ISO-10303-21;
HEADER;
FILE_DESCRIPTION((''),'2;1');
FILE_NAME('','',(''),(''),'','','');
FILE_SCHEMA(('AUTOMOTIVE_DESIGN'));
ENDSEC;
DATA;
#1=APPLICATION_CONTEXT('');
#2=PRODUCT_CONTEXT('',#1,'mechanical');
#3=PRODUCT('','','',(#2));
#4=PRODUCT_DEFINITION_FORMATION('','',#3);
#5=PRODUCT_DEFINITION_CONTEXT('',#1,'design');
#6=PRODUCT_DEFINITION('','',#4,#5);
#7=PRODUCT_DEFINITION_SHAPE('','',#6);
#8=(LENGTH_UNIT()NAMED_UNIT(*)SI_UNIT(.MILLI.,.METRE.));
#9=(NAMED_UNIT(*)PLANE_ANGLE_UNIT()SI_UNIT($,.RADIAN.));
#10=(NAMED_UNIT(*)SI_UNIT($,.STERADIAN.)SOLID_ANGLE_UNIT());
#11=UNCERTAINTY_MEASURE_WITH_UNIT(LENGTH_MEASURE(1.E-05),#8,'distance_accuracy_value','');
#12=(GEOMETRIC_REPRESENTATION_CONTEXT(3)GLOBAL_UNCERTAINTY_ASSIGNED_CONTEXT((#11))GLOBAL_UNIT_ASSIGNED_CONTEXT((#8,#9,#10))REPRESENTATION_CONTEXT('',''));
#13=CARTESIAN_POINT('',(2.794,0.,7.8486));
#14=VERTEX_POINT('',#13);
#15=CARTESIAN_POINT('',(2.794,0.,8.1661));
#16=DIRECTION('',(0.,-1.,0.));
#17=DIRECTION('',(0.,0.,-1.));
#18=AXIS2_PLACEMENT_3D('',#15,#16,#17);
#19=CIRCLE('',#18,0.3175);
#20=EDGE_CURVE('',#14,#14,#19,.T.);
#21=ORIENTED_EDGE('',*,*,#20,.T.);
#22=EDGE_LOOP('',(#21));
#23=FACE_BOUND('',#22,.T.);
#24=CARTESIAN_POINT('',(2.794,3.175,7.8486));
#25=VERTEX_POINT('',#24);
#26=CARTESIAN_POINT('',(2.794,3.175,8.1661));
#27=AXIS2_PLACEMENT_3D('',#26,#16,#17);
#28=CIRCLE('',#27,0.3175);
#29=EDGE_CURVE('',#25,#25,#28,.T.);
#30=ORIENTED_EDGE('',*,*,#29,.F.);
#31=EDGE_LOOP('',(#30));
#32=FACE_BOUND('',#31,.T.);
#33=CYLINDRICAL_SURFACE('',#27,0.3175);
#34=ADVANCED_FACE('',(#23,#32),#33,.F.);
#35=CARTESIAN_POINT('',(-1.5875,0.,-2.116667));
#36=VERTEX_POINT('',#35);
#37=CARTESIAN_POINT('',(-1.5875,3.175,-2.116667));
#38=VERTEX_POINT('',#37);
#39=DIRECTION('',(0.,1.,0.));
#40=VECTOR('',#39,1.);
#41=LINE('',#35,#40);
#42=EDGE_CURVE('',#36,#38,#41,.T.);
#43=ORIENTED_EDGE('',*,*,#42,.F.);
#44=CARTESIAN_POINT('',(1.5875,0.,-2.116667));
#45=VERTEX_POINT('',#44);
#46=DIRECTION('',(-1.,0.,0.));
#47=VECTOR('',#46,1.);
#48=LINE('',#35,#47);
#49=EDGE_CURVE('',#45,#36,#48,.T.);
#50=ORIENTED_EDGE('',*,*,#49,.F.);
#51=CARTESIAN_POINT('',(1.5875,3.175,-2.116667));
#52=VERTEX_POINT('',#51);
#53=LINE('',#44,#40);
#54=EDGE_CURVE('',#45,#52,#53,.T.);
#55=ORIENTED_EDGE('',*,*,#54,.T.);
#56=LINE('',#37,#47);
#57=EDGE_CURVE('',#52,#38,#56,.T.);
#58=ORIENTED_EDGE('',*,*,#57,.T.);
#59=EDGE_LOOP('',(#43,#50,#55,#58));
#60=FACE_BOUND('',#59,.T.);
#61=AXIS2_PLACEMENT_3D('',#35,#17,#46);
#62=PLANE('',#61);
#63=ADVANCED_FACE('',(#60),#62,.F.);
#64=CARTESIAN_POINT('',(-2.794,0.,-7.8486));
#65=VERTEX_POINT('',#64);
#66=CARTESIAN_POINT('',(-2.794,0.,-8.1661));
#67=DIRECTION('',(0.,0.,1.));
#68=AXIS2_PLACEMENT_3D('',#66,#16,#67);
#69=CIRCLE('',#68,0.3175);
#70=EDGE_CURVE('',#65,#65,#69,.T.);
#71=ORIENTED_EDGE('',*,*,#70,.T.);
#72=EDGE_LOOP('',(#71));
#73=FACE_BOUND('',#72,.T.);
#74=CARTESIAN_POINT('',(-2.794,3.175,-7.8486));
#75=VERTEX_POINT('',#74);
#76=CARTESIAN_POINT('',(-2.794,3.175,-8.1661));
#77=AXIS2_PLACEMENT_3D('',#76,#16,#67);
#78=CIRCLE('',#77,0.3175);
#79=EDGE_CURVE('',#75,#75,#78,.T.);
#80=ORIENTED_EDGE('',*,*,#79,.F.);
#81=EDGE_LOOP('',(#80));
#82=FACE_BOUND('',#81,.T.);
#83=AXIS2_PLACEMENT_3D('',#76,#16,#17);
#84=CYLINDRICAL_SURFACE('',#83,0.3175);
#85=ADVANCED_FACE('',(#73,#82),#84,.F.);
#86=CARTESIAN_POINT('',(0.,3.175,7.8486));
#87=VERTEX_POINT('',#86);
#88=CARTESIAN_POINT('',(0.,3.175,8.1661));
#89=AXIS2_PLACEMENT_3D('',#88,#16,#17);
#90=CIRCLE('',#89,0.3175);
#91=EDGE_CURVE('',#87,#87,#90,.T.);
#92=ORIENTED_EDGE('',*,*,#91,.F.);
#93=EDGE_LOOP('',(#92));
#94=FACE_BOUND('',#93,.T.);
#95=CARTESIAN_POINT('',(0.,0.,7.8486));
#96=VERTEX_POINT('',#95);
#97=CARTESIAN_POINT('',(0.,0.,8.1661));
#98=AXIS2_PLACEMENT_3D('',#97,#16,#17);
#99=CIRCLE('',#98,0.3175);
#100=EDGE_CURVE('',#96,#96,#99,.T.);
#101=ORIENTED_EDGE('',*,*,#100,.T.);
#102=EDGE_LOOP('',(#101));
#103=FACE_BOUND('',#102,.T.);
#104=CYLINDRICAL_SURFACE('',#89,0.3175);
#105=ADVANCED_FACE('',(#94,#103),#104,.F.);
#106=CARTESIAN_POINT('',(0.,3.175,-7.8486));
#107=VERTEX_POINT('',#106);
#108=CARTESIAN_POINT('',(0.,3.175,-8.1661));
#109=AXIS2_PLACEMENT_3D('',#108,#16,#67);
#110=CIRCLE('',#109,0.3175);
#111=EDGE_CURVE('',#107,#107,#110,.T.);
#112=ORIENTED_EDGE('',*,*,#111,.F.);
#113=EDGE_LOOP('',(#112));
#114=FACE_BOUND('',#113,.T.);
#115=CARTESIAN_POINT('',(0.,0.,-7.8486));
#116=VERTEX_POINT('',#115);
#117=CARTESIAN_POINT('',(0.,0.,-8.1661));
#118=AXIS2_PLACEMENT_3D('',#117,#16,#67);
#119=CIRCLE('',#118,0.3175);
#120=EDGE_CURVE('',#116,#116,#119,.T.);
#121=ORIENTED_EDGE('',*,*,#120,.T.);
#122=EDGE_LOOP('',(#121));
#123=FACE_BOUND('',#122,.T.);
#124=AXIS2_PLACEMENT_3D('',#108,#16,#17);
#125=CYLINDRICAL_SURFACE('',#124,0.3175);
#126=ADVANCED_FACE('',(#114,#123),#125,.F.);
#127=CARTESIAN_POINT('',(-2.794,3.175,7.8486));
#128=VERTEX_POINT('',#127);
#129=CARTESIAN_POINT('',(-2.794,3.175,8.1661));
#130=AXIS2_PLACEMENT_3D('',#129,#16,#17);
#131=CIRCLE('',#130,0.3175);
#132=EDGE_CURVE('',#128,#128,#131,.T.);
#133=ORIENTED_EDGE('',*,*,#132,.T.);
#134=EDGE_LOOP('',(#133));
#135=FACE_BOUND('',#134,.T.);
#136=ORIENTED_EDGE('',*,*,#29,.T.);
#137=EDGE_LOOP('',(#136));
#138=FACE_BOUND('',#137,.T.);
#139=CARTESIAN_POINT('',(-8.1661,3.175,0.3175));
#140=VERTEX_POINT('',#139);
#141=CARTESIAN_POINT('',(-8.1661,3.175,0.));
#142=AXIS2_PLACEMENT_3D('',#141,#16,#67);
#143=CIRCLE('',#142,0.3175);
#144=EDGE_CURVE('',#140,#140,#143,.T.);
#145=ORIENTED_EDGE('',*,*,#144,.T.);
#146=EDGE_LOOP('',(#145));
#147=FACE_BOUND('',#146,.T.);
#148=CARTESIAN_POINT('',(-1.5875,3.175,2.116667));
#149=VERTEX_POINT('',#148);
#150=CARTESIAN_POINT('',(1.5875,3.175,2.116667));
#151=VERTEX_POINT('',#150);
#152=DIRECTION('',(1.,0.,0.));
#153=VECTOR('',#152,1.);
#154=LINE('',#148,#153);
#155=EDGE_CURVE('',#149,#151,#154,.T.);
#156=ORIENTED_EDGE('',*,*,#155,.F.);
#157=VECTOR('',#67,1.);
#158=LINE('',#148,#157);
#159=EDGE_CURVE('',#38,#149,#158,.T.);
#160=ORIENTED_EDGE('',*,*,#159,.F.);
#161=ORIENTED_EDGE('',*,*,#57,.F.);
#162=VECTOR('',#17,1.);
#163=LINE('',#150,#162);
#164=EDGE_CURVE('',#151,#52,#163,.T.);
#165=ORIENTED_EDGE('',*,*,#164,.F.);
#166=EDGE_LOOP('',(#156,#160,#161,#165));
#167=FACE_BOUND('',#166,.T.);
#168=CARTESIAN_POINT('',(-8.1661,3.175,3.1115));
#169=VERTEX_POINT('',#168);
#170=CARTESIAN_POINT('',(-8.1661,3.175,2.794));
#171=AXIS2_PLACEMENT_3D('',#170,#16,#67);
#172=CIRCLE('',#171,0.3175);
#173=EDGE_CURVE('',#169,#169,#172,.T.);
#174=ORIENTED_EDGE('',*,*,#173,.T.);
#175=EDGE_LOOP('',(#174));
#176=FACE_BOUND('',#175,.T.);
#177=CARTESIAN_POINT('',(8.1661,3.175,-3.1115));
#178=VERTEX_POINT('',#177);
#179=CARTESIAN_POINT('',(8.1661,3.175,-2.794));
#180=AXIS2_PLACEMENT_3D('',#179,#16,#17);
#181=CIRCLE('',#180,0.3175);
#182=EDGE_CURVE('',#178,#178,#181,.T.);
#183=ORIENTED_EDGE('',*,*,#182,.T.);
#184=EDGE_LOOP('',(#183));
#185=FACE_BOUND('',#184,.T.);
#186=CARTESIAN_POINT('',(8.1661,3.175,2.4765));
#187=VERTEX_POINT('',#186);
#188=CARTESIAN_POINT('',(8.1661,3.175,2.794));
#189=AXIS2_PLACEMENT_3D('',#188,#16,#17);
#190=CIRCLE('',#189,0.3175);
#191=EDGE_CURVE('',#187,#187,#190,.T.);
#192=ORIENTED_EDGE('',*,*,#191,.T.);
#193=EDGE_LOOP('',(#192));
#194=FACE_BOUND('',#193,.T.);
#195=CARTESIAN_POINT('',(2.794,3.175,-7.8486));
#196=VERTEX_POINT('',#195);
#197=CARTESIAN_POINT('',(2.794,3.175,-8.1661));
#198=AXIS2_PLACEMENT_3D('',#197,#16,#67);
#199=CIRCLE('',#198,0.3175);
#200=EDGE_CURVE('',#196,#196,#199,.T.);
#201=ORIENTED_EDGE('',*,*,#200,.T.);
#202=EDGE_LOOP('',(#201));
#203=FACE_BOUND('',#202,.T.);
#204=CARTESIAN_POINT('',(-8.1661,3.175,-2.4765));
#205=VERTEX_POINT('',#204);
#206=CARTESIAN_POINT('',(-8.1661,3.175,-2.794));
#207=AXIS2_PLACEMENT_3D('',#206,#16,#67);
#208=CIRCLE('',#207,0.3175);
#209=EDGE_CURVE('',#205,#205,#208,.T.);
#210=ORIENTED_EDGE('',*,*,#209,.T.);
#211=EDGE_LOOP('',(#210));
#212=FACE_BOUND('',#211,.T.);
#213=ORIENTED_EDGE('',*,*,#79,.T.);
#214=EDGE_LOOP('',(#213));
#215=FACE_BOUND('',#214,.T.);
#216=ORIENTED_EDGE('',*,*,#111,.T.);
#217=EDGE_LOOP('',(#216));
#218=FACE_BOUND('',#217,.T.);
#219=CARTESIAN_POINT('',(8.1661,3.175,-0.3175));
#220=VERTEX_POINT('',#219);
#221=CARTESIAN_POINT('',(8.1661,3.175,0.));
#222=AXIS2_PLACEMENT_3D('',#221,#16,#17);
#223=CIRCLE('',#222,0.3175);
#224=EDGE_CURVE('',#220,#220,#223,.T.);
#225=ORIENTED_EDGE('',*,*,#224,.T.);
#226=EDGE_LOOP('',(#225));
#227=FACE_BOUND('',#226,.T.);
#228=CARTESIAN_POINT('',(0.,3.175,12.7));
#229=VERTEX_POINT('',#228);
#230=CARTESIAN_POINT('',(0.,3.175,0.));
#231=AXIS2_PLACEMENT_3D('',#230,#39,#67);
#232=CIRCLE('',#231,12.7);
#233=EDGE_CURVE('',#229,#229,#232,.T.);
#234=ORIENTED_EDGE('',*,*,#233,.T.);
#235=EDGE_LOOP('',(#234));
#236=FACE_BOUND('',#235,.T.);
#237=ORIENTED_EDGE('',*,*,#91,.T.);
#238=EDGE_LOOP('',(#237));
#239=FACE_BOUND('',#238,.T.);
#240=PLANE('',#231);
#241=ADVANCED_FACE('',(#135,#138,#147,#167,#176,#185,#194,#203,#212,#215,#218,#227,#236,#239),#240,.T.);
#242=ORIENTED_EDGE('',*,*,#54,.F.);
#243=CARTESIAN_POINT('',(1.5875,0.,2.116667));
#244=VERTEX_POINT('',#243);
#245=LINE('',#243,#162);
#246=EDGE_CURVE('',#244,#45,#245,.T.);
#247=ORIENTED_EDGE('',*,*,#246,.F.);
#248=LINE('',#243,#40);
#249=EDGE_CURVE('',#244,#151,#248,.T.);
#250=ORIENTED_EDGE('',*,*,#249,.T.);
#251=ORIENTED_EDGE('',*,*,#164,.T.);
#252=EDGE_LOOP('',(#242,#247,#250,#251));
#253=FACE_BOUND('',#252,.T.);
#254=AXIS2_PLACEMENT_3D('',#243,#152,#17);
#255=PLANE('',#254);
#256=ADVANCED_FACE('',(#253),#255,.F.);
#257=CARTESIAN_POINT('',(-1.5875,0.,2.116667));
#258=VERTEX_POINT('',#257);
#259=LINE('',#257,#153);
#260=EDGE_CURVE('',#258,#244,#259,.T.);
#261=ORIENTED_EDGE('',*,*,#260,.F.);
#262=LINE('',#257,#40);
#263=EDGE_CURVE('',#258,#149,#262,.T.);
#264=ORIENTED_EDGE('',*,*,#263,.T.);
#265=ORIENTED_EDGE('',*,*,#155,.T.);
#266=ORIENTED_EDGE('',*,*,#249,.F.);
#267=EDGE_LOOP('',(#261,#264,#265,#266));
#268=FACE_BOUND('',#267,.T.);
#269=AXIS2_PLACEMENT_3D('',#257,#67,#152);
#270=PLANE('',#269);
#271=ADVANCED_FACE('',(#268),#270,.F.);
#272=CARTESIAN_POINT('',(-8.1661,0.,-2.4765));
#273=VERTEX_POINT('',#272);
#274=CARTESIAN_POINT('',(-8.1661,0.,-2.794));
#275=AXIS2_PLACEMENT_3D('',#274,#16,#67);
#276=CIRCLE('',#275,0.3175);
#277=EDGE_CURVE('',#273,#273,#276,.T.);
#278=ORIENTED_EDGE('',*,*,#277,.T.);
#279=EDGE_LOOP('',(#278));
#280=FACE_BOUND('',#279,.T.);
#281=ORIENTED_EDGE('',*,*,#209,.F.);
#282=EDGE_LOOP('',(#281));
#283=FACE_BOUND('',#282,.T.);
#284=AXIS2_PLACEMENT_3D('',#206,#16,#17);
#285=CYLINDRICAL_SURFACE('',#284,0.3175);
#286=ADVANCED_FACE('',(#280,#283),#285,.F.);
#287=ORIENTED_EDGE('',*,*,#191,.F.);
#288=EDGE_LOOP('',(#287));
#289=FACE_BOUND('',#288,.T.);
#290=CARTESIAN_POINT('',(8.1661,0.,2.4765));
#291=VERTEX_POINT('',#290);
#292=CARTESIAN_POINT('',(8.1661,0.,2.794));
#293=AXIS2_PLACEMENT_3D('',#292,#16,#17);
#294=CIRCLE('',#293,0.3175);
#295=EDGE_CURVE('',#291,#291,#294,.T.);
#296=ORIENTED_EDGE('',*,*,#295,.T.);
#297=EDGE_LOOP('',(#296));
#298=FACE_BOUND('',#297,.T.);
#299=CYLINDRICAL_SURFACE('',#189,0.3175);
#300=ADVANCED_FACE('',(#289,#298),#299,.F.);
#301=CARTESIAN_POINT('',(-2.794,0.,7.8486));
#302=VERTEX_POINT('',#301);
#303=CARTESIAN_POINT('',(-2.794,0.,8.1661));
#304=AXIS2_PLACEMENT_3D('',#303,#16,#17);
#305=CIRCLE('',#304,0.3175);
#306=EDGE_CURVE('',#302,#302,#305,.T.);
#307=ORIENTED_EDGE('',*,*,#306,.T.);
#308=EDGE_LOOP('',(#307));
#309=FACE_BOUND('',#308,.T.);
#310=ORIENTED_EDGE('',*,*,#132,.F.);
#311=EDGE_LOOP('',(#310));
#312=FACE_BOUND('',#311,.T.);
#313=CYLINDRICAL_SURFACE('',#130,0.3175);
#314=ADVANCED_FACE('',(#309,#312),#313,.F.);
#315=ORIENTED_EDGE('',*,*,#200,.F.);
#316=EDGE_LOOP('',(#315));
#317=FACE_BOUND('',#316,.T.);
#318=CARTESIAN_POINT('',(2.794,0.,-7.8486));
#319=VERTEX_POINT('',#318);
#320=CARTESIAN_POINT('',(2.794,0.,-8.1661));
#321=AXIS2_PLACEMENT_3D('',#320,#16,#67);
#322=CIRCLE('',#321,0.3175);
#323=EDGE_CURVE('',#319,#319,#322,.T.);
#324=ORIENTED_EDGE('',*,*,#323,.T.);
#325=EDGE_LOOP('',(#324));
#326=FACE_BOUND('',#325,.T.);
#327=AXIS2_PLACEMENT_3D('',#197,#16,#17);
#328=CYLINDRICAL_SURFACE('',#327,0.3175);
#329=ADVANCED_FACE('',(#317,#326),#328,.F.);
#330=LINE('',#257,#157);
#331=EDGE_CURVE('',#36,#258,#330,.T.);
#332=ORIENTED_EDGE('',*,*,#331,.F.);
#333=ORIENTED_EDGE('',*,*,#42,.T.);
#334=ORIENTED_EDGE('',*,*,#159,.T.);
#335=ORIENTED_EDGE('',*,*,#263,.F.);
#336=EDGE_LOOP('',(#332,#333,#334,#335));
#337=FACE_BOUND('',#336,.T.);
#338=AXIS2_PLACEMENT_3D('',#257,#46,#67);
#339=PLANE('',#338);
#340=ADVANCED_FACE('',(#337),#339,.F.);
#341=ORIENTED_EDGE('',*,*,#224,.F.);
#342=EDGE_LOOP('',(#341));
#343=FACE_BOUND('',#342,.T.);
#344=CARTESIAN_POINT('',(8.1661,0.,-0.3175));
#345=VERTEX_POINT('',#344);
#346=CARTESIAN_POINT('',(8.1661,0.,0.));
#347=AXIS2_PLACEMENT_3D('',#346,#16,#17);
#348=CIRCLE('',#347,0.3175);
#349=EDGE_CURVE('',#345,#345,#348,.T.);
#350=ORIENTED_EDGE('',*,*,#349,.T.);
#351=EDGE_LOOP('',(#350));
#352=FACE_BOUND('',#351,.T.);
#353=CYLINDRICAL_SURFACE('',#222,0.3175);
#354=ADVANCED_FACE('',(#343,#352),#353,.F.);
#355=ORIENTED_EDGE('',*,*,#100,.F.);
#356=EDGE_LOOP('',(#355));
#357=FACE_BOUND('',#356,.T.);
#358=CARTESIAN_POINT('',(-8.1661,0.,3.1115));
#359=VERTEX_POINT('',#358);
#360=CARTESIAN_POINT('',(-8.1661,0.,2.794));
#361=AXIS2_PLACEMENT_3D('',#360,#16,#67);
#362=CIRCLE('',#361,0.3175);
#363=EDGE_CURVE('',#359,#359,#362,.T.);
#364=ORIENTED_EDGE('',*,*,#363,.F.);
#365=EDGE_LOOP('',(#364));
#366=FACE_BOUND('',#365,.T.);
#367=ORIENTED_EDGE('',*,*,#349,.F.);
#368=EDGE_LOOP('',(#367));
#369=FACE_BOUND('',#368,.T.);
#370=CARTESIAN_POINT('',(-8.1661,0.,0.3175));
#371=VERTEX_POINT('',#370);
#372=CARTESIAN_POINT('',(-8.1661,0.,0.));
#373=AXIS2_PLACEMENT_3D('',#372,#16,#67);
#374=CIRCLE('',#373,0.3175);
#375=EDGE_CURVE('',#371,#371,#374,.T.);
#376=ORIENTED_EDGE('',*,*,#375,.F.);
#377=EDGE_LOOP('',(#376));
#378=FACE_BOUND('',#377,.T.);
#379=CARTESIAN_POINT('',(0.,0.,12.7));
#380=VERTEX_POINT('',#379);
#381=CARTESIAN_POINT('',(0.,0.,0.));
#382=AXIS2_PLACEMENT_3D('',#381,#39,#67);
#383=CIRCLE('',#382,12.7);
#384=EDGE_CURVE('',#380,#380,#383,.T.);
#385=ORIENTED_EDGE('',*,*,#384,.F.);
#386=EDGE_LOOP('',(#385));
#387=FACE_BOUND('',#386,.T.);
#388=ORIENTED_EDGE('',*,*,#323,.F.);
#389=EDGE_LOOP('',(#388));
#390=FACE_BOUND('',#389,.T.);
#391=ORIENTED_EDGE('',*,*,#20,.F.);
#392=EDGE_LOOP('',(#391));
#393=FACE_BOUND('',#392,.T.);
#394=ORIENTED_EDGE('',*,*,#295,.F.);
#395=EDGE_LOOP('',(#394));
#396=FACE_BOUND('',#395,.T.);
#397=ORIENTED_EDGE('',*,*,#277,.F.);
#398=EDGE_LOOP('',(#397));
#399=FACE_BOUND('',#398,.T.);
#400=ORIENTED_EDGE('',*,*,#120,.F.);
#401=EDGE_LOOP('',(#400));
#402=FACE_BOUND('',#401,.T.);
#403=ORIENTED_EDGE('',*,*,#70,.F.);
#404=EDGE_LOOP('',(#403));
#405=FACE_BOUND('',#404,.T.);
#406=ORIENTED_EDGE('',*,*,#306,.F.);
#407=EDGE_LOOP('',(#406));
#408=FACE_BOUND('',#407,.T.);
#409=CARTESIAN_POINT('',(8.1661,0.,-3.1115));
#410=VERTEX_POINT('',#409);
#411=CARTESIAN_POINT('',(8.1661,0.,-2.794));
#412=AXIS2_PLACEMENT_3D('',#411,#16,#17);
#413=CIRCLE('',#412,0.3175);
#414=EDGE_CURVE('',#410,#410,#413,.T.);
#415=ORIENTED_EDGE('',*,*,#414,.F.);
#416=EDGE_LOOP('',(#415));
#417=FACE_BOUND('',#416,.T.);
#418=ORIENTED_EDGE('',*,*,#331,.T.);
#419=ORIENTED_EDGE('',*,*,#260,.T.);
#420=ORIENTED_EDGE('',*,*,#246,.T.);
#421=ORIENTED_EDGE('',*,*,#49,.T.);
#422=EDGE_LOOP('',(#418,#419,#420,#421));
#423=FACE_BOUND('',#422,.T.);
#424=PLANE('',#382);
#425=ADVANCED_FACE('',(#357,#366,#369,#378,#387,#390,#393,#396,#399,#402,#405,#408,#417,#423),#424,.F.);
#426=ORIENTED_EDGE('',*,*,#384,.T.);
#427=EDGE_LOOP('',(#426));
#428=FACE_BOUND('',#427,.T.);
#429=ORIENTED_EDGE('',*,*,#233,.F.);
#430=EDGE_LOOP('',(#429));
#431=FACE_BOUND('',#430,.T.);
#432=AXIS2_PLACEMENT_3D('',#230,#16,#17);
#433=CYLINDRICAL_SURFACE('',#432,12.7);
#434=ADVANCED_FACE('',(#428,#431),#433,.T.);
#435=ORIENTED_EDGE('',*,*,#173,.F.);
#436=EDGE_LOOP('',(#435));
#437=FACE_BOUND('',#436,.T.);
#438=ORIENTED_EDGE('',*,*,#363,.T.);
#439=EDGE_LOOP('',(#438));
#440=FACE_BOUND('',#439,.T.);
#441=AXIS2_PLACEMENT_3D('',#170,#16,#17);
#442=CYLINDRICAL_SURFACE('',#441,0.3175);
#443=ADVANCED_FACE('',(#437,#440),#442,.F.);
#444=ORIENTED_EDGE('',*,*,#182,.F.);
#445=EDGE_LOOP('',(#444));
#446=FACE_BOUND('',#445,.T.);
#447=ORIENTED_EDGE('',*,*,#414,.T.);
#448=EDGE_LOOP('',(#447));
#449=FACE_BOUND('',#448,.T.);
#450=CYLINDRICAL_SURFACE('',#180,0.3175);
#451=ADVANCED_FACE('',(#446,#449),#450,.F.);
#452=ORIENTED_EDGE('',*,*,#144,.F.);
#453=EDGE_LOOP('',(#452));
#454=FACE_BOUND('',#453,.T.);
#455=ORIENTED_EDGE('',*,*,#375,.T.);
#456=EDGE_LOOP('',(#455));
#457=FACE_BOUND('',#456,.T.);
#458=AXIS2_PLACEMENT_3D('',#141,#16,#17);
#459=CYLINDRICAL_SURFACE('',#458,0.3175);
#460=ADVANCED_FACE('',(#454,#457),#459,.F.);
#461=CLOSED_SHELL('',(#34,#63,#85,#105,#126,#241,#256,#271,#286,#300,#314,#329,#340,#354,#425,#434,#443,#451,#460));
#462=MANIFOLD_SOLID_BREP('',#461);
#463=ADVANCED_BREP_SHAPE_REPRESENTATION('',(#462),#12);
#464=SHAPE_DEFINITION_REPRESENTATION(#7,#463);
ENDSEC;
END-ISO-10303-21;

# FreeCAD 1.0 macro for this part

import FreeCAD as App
import Part
import Sketcher
from FreeCAD import Vector
Q = App.Units.Quantity


def add_polygon(sketch, points):
    """Adds a closed chain of lines whose ends are joined by coincident constraints."""
    first, n = sketch.GeometryCount, len(points)
    for a, b in zip(points, points[1:] + points[:1]):
        sketch.addGeometry(Part.LineSegment(App.Vector(*a, 0), App.Vector(*b, 0)), False)
    for i in range(n):
        sketch.addConstraint(Sketcher.Constraint("Coincident", first + i, 2, first + (i + 1) % n, 1))

doc = App.newDocument("Part")
body = doc.addObject("PartDesign::Body", "Body")

sketch1 = body.newObject("Sketcher::SketchObject", "Sketch")
sketch1.AttachmentSupport = (doc.getObject("XZ_Plane"), [""])
sketch1.MapMode = "FlatFace"
sketch1.addGeometry(Part.Circle(Vector(0, 0, 0), Vector(0, 0, 1), 13), False)
sketch1.addConstraint(Sketcher.Constraint("Coincident", 0, 3, -1, 1))
sketch1.addConstraint(Sketcher.Constraint("Diameter", 0, Q("1 in")))
pad1 = body.newObject("PartDesign::Pad", "Pad")
pad1.Profile = sketch1
pad1.Length = Q("0.125 in")
pad1.Reversed = True

sketch2 = body.newObject("Sketcher::SketchObject", "Sketch001")
sketch2.AttachmentSupport = (doc.getObject("XZ_Plane"), [""])
sketch2.MapMode = "FlatFace"
sketch2.AttachmentOffset = App.Placement(Vector(0, 0, -0.125 * 25.4), App.Rotation())
add_polygon(sketch2, [(-1.6, -2.1), (-1.6, 2.1), (1.6, 2.1), (1.6, -2.1)])
sketch2.addConstraint(Sketcher.Constraint("Vertical", 0))
sketch2.addConstraint(Sketcher.Constraint("Horizontal", 1))
sketch2.addConstraint(Sketcher.Constraint("Vertical", 2))
sketch2.addConstraint(Sketcher.Constraint("Horizontal", 3))
sketch2.addConstraint(Sketcher.Constraint("Symmetric", 0, 2, 2, 2, -1, 1))
sketch2.addConstraint(Sketcher.Constraint("DistanceX", 1, 1, 1, 2, Q("0.125 in")))
sketch2.addConstraint(Sketcher.Constraint("DistanceY", 0, 1, 0, 2, 4.233333))
pocket1 = body.newObject("PartDesign::Pocket", "Pocket")
pocket1.Profile = sketch2
pocket1.Type = "ThroughAll"
pocket1.Reversed = True

sketch3 = body.newObject("Sketcher::SketchObject", "Sketch002")
sketch3.AttachmentSupport = (doc.getObject("XZ_Plane"), [""])
sketch3.MapMode = "FlatFace"
sketch3.addGeometry(Part.Circle(Vector(0, 8.17, 0), Vector(0, 0, 1), 0.32), False)
sketch3.addGeometry(Part.Circle(Vector(2.79, 8.17, 0), Vector(0, 0, 1), 0.32), False)
sketch3.addGeometry(Part.Circle(Vector(-2.79, 8.17, 0), Vector(0, 0, 1), 0.32), False)
sketch3.addGeometry(Part.Circle(Vector(2.79, -8.17, 0), Vector(0, 0, 1), 0.32), False)
sketch3.addGeometry(Part.Circle(Vector(0, -8.17, 0), Vector(0, 0, 1), 0.32), False)
sketch3.addGeometry(Part.Circle(Vector(-2.79, -8.17, 0), Vector(0, 0, 1), 0.32), False)
sketch3.addGeometry(Part.Circle(Vector(8.17, 0, 0), Vector(0, 0, 1), 0.32), False)
sketch3.addGeometry(Part.Circle(Vector(8.17, 2.79, 0), Vector(0, 0, 1), 0.32), False)
sketch3.addGeometry(Part.Circle(Vector(8.17, -2.79, 0), Vector(0, 0, 1), 0.32), False)
sketch3.addGeometry(Part.Circle(Vector(-8.17, -2.79, 0), Vector(0, 0, 1), 0.32), False)
sketch3.addGeometry(Part.Circle(Vector(-8.17, 2.79, 0), Vector(0, 0, 1), 0.32), False)
sketch3.addGeometry(Part.Circle(Vector(-8.17, 0, 0), Vector(0, 0, 1), 0.32), False)
sketch3.addConstraint(Sketcher.Constraint("Equal", 0, 1))
sketch3.addConstraint(Sketcher.Constraint("Equal", 1, 2))
sketch3.addConstraint(Sketcher.Constraint("Equal", 2, 3))
sketch3.addConstraint(Sketcher.Constraint("Equal", 3, 4))
sketch3.addConstraint(Sketcher.Constraint("Equal", 4, 5))
sketch3.addConstraint(Sketcher.Constraint("Equal", 5, 6))
sketch3.addConstraint(Sketcher.Constraint("Equal", 6, 7))
sketch3.addConstraint(Sketcher.Constraint("Equal", 7, 8))
sketch3.addConstraint(Sketcher.Constraint("Equal", 8, 9))
sketch3.addConstraint(Sketcher.Constraint("Equal", 9, 10))
sketch3.addConstraint(Sketcher.Constraint("Equal", 10, 11))
sketch3.addConstraint(Sketcher.Constraint("Symmetric", 2, 3, 3, 3, -1, 1))
sketch3.addConstraint(Sketcher.Constraint("Symmetric", 0, 3, 4, 3, -1, 1))
sketch3.addConstraint(Sketcher.Constraint("Symmetric", 1, 3, 5, 3, -1, 1))
sketch3.addConstraint(Sketcher.Constraint("Symmetric", 7, 3, 9, 3, -1, 1))
sketch3.addConstraint(Sketcher.Constraint("Symmetric", 8, 3, 10, 3, -1, 1))
sketch3.addConstraint(Sketcher.Constraint("Symmetric", 6, 3, 11, 3, -1, 1))
sketch3.addConstraint(Sketcher.Constraint("Symmetric", 1, 3, 2, 3, -2))
sketch3.addConstraint(Sketcher.Constraint("Symmetric", 8, 3, 9, 3, -2))
sketch3.addConstraint(Sketcher.Constraint("PointOnObject", 0, 3, -2))
sketch3.addConstraint(Sketcher.Constraint("PointOnObject", 6, 3, -1))
sketch3.addConstraint(Sketcher.Constraint("Horizontal", 0, 3, 1, 3))
sketch3.addConstraint(Sketcher.Constraint("Vertical", 6, 3, 7, 3))
sketch3.addConstraint(Sketcher.Constraint("Diameter", 0, Q("0.025 in")))
sketch3.addConstraint(Sketcher.Constraint("DistanceX", -1, 1, 1, 3, Q("0.11 in")))
sketch3.addConstraint(Sketcher.Constraint("DistanceY", -1, 1, 7, 3, Q("0.11 in")))
sketch3.addConstraint(Sketcher.Constraint("DistanceY", 3, 3, 1, 3, Q("0.643 in")))
sketch3.addConstraint(Sketcher.Constraint("DistanceX", -1, 1, 6, 3, Q("0.3215 in")))
pocket2 = body.newObject("PartDesign::Pocket", "Pocket001")
pocket2.Profile = sketch3
pocket2.Type = "ThroughAll"

doc.recompute()
